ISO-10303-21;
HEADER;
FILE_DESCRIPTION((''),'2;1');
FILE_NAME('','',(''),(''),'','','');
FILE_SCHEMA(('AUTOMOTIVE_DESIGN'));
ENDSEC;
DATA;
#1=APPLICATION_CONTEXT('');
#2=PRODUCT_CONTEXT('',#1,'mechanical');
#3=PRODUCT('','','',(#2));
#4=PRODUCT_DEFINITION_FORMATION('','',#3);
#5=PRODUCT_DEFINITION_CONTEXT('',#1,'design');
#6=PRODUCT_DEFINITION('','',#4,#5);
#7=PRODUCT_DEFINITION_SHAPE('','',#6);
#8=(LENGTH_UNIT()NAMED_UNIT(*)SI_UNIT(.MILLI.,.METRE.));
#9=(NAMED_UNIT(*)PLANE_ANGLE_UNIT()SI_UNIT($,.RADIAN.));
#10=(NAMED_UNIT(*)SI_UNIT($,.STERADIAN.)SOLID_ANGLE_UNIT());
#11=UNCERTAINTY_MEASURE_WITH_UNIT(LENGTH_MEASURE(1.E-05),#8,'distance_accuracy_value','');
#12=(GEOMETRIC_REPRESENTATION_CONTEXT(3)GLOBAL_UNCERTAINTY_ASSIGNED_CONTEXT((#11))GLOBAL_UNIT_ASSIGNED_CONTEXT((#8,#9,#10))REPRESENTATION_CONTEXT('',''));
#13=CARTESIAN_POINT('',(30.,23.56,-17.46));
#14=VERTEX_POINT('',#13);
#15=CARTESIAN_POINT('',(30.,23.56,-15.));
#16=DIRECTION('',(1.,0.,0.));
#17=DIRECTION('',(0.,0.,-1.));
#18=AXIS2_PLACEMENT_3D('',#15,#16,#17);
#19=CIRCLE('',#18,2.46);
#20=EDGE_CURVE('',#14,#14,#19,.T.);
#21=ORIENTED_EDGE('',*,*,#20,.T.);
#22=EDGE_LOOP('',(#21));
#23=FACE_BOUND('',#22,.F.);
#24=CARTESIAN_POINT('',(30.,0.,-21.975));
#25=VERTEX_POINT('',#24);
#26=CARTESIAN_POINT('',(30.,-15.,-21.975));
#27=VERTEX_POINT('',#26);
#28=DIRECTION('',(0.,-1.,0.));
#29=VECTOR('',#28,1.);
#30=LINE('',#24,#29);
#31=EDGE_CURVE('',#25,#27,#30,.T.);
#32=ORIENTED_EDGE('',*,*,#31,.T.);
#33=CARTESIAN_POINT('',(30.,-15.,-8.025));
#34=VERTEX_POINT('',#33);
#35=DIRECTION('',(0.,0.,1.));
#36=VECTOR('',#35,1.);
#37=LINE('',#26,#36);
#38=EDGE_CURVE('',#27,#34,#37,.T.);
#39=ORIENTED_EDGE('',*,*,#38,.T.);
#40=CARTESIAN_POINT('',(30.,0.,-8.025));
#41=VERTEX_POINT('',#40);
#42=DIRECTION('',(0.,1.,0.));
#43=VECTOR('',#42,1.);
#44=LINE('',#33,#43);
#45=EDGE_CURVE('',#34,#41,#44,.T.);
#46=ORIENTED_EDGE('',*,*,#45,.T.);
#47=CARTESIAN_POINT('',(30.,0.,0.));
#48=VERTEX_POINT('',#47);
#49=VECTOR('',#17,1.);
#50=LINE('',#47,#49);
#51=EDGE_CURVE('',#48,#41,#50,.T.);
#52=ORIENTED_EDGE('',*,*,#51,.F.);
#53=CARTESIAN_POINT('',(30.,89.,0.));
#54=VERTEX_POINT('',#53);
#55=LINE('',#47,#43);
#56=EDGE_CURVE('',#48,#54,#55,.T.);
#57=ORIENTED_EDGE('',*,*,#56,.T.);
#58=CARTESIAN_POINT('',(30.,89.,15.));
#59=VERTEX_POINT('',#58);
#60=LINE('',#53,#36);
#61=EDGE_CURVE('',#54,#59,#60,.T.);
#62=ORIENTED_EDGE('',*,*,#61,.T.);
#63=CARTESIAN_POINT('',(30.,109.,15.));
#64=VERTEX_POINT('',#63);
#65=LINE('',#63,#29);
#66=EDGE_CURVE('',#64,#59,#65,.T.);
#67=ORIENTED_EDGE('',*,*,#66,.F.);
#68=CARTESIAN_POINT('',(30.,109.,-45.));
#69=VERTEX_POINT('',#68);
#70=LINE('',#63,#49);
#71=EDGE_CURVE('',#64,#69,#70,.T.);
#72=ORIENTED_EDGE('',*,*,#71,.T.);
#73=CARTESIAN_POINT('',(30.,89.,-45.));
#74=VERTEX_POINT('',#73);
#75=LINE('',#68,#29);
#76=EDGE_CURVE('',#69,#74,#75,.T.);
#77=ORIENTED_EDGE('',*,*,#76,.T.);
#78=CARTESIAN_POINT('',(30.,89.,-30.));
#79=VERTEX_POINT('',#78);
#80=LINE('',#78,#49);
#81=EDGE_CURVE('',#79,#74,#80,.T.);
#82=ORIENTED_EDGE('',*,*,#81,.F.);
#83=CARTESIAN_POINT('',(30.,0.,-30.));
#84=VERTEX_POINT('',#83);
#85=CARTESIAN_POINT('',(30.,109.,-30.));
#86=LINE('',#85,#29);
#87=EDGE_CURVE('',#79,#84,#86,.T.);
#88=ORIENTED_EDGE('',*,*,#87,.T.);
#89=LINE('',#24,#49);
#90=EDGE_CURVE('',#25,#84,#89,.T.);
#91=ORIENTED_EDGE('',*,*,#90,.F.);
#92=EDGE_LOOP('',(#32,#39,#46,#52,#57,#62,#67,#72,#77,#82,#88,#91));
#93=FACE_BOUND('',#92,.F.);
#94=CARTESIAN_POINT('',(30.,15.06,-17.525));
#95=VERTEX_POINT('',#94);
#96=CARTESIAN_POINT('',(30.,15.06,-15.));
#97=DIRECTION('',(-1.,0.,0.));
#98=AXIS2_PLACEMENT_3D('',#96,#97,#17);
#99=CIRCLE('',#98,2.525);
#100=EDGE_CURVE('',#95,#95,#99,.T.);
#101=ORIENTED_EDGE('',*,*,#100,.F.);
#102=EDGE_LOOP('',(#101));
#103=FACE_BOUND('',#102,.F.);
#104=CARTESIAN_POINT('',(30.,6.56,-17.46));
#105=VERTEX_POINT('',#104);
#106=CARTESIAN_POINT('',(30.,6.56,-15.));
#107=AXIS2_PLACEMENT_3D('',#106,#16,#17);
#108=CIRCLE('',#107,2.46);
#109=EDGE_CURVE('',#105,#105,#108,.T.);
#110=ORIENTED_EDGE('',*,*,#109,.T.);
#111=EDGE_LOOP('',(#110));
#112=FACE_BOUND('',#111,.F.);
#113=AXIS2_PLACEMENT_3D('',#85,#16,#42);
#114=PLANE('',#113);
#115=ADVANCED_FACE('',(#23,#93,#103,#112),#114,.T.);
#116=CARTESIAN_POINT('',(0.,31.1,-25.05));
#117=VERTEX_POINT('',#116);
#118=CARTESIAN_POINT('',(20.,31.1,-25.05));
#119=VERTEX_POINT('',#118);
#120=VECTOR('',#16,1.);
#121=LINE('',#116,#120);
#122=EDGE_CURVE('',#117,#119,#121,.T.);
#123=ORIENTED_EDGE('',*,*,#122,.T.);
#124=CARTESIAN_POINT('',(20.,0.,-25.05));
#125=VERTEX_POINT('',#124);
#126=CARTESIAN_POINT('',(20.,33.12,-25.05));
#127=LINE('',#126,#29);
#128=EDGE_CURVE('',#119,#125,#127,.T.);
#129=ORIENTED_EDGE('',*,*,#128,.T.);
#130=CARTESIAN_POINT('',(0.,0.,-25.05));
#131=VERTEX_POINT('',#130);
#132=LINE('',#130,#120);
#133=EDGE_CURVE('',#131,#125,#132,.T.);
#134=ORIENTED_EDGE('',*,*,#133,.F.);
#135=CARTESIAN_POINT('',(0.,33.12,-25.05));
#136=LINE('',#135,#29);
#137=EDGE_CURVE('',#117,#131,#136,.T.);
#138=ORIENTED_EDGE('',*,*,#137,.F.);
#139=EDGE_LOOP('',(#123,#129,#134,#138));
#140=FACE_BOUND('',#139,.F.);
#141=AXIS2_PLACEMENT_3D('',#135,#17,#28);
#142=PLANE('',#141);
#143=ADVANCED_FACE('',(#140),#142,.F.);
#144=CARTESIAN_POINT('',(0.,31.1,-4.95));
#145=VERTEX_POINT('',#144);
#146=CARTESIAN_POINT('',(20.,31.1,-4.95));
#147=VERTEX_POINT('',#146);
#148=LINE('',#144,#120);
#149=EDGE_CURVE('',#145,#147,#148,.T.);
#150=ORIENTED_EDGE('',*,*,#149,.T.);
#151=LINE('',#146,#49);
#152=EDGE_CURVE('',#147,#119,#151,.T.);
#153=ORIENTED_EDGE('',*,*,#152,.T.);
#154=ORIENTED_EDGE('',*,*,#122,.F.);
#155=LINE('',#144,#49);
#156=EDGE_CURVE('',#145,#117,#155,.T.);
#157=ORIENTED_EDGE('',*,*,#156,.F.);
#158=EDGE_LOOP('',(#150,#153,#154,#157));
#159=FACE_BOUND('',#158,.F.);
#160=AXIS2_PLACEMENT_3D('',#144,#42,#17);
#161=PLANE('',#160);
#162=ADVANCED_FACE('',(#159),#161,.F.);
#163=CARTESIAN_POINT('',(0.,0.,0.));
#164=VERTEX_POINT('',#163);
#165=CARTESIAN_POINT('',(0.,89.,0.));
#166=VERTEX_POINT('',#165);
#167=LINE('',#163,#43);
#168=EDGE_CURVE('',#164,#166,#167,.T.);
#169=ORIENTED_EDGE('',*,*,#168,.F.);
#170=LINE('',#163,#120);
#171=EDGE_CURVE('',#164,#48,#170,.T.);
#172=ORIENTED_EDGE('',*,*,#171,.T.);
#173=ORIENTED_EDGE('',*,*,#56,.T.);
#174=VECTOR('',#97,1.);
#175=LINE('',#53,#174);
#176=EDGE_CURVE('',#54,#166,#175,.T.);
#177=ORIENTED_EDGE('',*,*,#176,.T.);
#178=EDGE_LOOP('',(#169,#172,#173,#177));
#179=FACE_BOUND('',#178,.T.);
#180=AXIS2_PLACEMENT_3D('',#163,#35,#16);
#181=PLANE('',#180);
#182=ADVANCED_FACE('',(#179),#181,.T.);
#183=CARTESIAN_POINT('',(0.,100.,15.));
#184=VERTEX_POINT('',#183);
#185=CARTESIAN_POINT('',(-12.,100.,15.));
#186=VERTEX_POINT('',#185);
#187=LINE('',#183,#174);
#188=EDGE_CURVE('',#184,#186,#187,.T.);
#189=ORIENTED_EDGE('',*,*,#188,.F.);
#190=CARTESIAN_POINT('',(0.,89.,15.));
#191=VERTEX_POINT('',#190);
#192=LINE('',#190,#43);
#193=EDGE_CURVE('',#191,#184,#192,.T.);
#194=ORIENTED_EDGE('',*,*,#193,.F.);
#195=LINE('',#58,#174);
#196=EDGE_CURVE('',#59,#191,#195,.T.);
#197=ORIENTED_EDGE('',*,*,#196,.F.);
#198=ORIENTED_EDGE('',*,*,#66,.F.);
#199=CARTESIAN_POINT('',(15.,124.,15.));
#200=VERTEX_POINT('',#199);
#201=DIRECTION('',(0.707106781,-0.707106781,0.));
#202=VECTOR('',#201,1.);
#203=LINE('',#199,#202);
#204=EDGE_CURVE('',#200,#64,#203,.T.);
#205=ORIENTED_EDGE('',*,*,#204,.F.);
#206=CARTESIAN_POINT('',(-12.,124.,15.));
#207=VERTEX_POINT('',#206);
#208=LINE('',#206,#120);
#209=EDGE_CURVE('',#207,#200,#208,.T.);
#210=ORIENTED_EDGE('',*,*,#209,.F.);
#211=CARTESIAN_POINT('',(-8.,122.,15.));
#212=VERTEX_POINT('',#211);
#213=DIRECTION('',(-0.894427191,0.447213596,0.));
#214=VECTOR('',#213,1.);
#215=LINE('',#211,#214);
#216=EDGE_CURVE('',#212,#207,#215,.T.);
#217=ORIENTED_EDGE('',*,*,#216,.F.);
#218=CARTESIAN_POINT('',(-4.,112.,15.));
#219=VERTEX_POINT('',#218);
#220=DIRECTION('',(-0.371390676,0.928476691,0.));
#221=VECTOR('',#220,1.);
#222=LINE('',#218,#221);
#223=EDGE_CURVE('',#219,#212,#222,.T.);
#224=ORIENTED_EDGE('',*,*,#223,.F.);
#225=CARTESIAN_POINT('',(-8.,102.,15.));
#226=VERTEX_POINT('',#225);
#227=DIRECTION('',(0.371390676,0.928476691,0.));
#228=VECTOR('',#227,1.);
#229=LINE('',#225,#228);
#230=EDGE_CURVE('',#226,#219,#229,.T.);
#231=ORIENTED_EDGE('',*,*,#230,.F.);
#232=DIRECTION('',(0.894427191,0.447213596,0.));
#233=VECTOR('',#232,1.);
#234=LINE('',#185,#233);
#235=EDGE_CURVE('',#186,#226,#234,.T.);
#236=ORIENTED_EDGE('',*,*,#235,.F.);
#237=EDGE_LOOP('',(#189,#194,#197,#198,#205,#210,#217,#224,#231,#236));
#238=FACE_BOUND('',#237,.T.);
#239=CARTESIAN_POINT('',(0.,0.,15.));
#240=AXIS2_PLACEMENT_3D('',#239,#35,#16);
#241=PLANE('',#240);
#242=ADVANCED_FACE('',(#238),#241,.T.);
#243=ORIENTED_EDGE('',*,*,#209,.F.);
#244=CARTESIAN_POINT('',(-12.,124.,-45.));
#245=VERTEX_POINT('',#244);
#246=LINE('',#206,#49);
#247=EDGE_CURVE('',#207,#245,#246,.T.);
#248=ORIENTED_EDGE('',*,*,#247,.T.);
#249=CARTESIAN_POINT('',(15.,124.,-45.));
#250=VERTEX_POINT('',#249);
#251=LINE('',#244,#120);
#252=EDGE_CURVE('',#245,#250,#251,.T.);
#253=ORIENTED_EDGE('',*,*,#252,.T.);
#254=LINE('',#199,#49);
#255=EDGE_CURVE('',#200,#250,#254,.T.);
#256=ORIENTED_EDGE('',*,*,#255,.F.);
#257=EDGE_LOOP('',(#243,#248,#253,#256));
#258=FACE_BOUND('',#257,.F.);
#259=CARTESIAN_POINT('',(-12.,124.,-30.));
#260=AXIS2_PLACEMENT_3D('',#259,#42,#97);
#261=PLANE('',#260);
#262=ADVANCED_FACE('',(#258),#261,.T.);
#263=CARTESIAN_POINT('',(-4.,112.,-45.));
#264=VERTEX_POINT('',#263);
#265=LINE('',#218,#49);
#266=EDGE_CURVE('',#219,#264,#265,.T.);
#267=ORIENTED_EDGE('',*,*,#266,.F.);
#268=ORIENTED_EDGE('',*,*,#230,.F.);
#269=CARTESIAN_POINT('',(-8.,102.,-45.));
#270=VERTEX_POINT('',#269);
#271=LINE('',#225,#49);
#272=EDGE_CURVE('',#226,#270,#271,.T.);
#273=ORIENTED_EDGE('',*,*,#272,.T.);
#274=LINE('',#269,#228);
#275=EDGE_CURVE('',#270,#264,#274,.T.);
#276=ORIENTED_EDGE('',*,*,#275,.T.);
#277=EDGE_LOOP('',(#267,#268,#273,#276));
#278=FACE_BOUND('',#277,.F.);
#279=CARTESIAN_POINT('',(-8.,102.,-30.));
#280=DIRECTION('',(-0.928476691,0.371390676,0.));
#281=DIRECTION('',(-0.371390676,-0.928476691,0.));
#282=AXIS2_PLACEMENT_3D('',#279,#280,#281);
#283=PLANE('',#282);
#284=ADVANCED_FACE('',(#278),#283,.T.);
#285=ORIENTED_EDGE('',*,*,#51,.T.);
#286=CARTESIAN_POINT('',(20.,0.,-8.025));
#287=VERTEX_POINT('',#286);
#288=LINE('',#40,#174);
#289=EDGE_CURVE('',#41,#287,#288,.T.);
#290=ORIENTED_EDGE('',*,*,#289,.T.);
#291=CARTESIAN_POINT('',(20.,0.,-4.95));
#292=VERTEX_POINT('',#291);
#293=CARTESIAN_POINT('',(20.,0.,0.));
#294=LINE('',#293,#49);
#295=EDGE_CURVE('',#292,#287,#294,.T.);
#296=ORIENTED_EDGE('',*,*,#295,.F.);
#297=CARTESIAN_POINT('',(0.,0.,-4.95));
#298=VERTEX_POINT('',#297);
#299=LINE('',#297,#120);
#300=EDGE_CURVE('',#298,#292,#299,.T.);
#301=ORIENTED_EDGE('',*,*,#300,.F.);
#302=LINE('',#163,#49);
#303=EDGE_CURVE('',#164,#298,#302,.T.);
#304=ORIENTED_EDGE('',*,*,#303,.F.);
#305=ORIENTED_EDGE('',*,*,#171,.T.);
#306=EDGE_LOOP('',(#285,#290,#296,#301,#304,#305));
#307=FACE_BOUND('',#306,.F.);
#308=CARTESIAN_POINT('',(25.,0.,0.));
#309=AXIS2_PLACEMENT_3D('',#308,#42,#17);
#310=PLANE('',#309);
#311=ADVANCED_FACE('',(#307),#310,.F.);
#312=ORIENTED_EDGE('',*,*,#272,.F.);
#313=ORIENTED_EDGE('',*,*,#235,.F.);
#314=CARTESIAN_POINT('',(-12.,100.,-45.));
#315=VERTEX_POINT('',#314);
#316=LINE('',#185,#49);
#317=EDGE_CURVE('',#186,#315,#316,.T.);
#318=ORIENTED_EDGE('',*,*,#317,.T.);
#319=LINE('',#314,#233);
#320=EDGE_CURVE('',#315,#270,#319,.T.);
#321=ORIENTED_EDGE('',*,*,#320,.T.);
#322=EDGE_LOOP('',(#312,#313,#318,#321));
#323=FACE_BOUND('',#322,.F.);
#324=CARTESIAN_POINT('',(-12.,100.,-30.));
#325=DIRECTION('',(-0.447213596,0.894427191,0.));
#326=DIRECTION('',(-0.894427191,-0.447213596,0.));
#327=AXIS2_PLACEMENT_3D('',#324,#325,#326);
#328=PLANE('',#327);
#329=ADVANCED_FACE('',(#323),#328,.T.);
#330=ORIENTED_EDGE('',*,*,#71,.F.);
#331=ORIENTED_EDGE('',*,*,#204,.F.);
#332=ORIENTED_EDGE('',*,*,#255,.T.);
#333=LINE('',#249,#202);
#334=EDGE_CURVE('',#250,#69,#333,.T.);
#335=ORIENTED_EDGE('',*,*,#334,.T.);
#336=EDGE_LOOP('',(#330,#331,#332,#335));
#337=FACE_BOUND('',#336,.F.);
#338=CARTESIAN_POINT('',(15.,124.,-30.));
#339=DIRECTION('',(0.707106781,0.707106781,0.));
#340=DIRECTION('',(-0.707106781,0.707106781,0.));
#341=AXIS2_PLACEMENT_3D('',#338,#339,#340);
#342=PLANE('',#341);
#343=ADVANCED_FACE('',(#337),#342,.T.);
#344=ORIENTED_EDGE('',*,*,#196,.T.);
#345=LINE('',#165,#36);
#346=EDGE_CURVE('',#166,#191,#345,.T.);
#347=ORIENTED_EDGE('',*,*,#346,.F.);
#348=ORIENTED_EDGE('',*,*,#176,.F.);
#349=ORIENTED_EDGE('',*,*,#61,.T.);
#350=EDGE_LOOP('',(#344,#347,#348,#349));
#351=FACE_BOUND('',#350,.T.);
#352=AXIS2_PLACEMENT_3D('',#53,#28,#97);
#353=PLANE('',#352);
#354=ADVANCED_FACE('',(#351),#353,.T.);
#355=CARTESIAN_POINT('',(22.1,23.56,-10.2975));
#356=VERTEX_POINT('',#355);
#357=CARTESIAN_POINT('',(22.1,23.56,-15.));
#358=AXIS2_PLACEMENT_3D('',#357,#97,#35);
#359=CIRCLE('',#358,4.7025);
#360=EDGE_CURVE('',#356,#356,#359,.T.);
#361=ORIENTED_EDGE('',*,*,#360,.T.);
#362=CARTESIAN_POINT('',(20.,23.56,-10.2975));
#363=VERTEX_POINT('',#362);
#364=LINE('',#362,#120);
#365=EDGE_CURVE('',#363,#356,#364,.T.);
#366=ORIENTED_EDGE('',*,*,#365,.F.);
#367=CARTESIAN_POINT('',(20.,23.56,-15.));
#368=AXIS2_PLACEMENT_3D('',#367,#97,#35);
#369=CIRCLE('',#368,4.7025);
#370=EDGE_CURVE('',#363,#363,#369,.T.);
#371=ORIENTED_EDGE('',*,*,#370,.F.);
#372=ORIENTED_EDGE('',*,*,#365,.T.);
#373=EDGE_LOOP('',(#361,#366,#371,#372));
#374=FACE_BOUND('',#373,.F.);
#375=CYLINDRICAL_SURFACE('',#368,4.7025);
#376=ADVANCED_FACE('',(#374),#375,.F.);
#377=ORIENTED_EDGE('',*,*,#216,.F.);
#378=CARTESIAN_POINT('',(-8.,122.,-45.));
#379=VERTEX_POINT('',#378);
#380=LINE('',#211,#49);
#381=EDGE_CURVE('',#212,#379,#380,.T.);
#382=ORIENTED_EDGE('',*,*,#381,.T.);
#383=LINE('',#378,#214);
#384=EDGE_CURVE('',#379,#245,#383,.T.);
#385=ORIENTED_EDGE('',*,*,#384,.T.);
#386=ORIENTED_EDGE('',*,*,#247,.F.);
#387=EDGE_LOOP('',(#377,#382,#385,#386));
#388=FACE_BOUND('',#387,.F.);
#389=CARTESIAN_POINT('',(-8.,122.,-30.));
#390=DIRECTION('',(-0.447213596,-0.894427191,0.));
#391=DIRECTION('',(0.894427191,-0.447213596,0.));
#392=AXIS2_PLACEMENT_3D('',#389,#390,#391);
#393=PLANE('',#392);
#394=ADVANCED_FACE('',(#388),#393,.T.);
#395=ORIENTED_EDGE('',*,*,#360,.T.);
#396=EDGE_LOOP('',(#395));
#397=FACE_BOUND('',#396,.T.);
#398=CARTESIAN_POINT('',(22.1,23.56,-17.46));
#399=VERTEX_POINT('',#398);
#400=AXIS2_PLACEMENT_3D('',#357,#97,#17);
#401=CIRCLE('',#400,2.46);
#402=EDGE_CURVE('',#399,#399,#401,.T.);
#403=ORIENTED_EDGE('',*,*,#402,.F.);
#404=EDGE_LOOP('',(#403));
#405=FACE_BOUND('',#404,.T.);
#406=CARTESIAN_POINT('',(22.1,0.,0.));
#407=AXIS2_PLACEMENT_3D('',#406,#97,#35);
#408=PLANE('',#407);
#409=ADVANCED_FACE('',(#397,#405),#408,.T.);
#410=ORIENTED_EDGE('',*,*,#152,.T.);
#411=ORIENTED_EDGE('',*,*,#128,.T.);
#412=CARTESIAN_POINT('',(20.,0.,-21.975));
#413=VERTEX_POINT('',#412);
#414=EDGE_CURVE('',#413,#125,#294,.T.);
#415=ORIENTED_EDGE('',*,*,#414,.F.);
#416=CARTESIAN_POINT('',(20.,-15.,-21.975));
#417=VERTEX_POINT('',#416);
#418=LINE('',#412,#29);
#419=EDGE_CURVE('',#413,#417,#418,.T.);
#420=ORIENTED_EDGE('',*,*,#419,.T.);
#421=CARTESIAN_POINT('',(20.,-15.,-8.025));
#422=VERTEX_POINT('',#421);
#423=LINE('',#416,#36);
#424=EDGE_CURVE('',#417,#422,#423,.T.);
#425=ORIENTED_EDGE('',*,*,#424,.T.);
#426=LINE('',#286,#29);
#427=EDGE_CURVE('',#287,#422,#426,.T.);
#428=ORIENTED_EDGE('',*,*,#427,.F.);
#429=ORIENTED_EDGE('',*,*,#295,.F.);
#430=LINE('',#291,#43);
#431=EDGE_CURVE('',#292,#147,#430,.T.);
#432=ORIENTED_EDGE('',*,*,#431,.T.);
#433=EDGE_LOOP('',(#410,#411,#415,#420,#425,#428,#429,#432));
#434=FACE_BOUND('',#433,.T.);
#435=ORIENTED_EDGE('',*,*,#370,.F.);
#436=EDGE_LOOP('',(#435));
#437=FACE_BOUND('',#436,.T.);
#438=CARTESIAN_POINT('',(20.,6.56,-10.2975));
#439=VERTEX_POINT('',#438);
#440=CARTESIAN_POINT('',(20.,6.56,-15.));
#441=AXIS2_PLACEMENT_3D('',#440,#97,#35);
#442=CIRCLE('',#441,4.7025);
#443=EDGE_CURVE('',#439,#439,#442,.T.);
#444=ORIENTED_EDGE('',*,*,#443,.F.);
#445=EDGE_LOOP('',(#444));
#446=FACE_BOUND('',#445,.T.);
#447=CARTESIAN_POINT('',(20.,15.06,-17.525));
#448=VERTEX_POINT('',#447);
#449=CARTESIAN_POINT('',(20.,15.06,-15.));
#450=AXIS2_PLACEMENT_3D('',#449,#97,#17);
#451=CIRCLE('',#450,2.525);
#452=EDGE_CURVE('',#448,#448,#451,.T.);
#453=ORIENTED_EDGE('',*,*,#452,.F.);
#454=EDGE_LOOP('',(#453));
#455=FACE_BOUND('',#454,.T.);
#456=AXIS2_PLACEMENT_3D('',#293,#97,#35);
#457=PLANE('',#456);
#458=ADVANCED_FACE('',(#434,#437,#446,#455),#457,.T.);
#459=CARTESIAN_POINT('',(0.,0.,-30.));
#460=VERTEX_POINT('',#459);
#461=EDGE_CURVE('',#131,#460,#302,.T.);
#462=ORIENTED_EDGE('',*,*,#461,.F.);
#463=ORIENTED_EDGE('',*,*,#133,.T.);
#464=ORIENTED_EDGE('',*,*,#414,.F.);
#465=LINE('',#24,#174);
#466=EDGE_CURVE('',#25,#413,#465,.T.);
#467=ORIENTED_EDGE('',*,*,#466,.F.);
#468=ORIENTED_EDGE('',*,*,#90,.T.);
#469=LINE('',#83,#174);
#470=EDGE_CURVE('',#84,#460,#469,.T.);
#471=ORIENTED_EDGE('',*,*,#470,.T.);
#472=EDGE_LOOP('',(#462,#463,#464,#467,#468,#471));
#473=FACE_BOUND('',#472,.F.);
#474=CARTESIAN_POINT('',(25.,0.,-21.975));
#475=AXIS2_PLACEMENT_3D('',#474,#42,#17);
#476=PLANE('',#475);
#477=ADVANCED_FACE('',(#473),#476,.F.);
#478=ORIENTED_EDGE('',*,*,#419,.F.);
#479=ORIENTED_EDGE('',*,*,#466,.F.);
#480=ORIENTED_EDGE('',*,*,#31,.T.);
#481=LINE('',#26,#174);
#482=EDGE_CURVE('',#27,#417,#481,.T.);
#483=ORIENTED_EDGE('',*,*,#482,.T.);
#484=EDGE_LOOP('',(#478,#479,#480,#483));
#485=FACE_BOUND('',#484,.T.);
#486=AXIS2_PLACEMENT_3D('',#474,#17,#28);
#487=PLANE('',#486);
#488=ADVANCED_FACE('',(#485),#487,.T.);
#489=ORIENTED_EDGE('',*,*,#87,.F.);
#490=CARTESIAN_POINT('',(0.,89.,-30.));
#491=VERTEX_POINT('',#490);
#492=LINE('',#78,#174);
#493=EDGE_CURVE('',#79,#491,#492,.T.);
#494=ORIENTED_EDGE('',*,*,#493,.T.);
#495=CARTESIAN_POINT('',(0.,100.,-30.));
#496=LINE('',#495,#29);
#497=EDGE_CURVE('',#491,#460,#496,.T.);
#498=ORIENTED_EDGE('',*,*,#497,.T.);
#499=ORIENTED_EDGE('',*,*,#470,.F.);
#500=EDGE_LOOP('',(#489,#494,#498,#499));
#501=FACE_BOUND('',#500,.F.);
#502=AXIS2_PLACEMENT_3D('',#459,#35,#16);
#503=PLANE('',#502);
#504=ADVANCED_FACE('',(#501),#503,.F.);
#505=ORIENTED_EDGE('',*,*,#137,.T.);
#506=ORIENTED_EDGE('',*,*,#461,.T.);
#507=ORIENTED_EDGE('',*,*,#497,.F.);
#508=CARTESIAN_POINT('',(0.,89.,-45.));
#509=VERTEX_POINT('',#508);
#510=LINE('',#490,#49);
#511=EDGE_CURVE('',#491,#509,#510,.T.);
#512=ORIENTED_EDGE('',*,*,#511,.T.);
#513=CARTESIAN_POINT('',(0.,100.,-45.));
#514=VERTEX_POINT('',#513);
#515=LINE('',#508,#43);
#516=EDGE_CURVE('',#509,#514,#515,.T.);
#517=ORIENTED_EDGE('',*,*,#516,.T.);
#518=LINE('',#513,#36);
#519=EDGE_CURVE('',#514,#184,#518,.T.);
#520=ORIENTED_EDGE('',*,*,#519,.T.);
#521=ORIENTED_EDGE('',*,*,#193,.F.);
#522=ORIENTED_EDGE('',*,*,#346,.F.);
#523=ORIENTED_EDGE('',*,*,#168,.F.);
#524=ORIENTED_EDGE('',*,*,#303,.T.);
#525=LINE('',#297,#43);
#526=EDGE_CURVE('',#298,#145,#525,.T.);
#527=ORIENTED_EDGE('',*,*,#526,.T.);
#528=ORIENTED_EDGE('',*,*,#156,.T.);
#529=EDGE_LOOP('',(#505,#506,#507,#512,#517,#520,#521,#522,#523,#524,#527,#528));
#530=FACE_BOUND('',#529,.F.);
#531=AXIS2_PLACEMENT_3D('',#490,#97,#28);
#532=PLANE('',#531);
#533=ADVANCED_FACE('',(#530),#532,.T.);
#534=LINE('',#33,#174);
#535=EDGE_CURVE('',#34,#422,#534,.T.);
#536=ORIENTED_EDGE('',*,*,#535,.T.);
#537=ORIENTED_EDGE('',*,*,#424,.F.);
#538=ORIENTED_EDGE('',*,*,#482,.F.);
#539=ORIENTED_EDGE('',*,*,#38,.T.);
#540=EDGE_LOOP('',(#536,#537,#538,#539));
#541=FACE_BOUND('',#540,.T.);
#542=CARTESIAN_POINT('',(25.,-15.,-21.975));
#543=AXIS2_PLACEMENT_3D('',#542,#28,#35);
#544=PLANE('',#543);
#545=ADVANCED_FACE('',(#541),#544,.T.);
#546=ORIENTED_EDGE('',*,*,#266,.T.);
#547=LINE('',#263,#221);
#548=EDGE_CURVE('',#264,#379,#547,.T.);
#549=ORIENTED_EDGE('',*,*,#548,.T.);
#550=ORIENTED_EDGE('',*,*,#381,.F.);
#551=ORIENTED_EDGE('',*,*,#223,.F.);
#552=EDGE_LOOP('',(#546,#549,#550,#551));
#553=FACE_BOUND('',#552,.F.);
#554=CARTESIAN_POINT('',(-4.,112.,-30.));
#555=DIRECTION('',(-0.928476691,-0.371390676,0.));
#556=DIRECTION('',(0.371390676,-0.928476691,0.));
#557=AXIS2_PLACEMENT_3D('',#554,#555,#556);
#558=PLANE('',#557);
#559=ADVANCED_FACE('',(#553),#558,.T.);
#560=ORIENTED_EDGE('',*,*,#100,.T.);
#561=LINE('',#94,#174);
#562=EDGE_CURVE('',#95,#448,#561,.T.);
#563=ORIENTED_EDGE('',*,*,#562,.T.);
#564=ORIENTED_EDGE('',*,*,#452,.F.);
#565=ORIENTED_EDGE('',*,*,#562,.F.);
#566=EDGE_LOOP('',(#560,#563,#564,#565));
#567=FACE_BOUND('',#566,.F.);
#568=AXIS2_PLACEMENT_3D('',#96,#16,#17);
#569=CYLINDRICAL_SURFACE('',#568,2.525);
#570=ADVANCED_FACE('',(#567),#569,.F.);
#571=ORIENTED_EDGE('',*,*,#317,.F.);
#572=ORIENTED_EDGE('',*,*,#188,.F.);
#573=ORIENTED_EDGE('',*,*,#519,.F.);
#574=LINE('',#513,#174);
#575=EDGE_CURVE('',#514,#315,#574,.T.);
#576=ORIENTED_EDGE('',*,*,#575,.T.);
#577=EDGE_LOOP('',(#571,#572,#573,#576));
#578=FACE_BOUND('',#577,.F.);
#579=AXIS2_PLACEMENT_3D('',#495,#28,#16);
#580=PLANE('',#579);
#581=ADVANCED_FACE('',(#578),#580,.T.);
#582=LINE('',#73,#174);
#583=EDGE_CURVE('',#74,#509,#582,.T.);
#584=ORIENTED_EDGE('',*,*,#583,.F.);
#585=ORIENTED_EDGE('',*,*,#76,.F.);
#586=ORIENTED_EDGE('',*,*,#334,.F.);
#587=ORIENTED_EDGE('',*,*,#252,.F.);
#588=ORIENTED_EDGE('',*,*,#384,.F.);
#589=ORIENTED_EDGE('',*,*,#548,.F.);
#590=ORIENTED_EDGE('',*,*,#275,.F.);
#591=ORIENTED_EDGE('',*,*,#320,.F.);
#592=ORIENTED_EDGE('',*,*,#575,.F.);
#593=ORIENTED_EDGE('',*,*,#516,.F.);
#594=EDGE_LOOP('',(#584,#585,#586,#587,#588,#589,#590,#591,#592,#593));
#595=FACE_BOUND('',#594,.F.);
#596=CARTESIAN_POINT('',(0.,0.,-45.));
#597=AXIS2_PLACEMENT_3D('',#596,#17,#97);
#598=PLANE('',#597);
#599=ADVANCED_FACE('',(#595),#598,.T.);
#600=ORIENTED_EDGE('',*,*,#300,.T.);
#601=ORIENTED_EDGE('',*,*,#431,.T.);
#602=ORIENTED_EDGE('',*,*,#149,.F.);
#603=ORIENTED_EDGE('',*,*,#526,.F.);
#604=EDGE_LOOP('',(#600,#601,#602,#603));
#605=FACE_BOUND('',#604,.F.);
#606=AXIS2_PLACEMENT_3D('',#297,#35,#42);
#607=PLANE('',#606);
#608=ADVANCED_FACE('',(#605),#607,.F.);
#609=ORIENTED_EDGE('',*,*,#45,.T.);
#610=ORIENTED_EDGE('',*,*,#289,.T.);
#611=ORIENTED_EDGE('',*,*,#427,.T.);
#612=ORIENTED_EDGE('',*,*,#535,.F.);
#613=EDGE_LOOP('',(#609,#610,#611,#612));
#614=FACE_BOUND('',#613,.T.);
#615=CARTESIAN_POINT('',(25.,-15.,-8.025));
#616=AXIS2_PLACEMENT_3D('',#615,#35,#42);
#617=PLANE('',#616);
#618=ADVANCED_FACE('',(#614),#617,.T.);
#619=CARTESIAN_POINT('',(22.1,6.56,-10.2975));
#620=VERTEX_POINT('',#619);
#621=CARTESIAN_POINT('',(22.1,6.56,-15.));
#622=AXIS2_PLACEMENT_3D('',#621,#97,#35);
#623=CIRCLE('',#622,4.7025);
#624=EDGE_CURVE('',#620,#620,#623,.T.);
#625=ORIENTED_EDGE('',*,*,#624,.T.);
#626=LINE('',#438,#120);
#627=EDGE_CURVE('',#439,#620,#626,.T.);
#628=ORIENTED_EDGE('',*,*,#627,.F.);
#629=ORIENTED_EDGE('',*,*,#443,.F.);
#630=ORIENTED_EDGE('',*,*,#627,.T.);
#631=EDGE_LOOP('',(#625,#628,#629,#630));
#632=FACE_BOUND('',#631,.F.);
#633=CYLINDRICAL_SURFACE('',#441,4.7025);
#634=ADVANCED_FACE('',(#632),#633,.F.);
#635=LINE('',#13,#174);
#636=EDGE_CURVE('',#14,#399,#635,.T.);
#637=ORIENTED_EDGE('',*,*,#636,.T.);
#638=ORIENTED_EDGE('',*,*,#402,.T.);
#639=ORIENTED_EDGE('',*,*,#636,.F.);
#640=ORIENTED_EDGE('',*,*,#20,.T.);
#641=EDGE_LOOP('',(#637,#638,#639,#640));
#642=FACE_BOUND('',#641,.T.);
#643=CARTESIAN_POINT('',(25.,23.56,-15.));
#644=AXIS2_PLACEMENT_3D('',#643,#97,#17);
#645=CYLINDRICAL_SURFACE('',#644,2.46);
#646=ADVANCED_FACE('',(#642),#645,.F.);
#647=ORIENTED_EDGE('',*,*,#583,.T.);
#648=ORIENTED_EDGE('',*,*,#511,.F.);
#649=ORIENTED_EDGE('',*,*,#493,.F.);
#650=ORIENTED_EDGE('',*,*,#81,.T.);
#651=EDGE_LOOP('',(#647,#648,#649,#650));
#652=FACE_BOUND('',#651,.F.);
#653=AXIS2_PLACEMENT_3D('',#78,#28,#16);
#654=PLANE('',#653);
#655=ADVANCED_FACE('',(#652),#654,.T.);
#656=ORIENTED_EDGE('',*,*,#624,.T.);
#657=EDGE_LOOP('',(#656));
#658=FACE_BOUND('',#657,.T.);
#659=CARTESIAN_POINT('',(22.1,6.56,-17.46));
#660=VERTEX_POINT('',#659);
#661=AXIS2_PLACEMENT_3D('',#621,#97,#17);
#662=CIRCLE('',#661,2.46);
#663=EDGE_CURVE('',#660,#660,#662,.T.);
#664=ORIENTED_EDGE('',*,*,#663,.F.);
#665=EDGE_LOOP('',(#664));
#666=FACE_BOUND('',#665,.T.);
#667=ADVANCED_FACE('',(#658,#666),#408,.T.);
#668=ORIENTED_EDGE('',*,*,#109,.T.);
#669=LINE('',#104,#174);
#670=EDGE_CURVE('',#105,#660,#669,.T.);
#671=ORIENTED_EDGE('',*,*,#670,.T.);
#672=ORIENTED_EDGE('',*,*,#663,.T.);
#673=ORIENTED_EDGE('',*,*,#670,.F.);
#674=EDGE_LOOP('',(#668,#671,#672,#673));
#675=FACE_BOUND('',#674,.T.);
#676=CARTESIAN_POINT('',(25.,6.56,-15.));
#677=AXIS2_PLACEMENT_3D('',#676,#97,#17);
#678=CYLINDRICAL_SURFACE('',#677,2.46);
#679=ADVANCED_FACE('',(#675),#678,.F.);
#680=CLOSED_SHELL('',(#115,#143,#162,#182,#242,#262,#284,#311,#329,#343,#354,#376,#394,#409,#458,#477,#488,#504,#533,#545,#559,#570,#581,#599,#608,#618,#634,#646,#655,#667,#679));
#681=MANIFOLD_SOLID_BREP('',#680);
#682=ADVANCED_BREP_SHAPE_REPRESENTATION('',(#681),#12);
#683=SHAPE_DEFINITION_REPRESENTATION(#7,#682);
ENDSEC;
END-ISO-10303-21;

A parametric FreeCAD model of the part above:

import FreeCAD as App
import Part
import Sketcher
from FreeCAD import Vector
Q = App.Units.Quantity

doc = App.newDocument("Part")
body = doc.addObject("PartDesign::Body", "Body")

sketch1 = body.newObject("Sketcher::SketchObject", "Sketch")
sketch1.AttachmentSupport = (doc.getObject("XY_Plane"), [""])
sketch1.MapMode = "FlatFace"
sketch1.addGeometry(Part.LineSegment(Vector(0, 40, 0), Vector(0, 0, 0)), False)
sketch1.addGeometry(Part.LineSegment(Vector(0, 0, 0), Vector(25, 0, 0)), False)
sketch1.addGeometry(Part.LineSegment(Vector(25, 0, 0), Vector(25, 40, 0)), False)
sketch1.addGeometry(Part.LineSegment(Vector(25, 40, 0), Vector(0, 40, 0)), False)
sketch1.addConstraint(Sketcher.Constraint("Coincident", 0, 2, 1, 1))
sketch1.addConstraint(Sketcher.Constraint("Coincident", 1, 2, 2, 1))
sketch1.addConstraint(Sketcher.Constraint("Coincident", 2, 2, 3, 1))
sketch1.addConstraint(Sketcher.Constraint("Coincident", 3, 2, 0, 1))
sketch1.addConstraint(Sketcher.Constraint("Vertical", 0))
sketch1.addConstraint(Sketcher.Constraint("Horizontal", 1))
sketch1.addConstraint(Sketcher.Constraint("Vertical", 2))
sketch1.addConstraint(Sketcher.Constraint("Horizontal", 3))
sketch1.addConstraint(Sketcher.Constraint("Coincident", 0, 2, -1, 1))
sketch1.addConstraint(Sketcher.Constraint("DistanceX", 1, 1, 1, 2, Q("25 mm")))
sketch1.addConstraint(Sketcher.Constraint("DistanceY", 0, 2, 0, 1, Q("40 mm")))
pad1 = body.newObject("PartDesign::Pad", "Pad")
pad1.Profile = sketch1
pad1.Length = 30
pad1.Reversed = True

sketch2 = body.newObject("Sketcher::SketchObject", "Sketch001")
sketch2.AttachmentSupport = (doc.getObject("YZ_Plane"), [""])
sketch2.MapMode = "FlatFace"
sketch2.AttachmentOffset = App.Placement(Vector(0, 0, 25), App.Rotation())
sketch2.addGeometry(Part.Circle(Vector(6.6, -15, 0), Vector(0, 0, 1), 2.5), False)
sketch2.addConstraint(Sketcher.Constraint("Diameter", 0, Q("4.92 mm")))
sketch2.addConstraint(Sketcher.Constraint("DistanceY", 0, 3, -1, 1, Q("15 mm")))
sketch2.addConstraint(Sketcher.Constraint("DistanceX", -1, 1, 0, 3, Q("6.56 mm")))
pocket1 = body.newObject("PartDesign::Pocket", "Pocket")
pocket1.Profile = sketch2
pocket1.Length = 30

sketch3 = body.newObject("Sketcher::SketchObject", "Sketch002")
sketch3.AttachmentSupport = (doc.getObject("YZ_Plane"), [""])
sketch3.MapMode = "FlatFace"
sketch3.addGeometry(Part.LineSegment(Vector(0, -25, 0), Vector(0, -5, 0)), False)
sketch3.addGeometry(Part.LineSegment(Vector(0, -5, 0), Vector(33, -5, 0)), False)
sketch3.addGeometry(Part.LineSegment(Vector(33, -5, 0), Vector(33, -25, 0)), False)
sketch3.addGeometry(Part.LineSegment(Vector(33, -25, 0), Vector(0, -25, 0)), False)
sketch3.addConstraint(Sketcher.Constraint("Coincident", 0, 2, 1, 1))
sketch3.addConstraint(Sketcher.Constraint("Coincident", 1, 2, 2, 1))
sketch3.addConstraint(Sketcher.Constraint("Coincident", 2, 2, 3, 1))
sketch3.addConstraint(Sketcher.Constraint("Coincident", 3, 2, 0, 1))
sketch3.addConstraint(Sketcher.Constraint("Vertical", 0))
sketch3.addConstraint(Sketcher.Constraint("Horizontal", 1))
sketch3.addConstraint(Sketcher.Constraint("Vertical", 2))
sketch3.addConstraint(Sketcher.Constraint("Horizontal", 3))
sketch3.addConstraint(Sketcher.Constraint("PointOnObject", 0, 2, -2))
sketch3.addConstraint(Sketcher.Constraint("DistanceY", 0, 1, 0, 2, Q("20.1 mm")))
sketch3.addConstraint(Sketcher.Constraint("DistanceX", 1, 1, 1, 2, Q("33.12 mm")))
sketch3.addConstraint(Sketcher.Constraint("DistanceY", 0, 2, -1, 1, Q("4.95 mm")))
pocket2 = body.newObject("PartDesign::Pocket", "Pocket001")
pocket2.Profile = sketch3
pocket2.Length = 20
pocket2.Reversed = True

sketch4 = body.newObject("Sketcher::SketchObject", "Sketch003")
sketch4.AttachmentSupport = (doc.getObject("XZ_Plane"), [""])
sketch4.MapMode = "FlatFace"
sketch4.addGeometry(Part.LineSegment(Vector(25, -8, 0), Vector(20, -8, 0)), False)
sketch4.addGeometry(Part.LineSegment(Vector(20, -8, 0), Vector(20, -22, 0)), False)
sketch4.addGeometry(Part.LineSegment(Vector(20, -22, 0), Vector(25, -22, 0)), False)
sketch4.addGeometry(Part.LineSegment(Vector(25, -22, 0), Vector(25, -8, 0)), False)
sketch4.addConstraint(Sketcher.Constraint("Coincident", 0, 2, 1, 1))
sketch4.addConstraint(Sketcher.Constraint("Coincident", 1, 2, 2, 1))
sketch4.addConstraint(Sketcher.Constraint("Coincident", 2, 2, 3, 1))
sketch4.addConstraint(Sketcher.Constraint("Coincident", 3, 2, 0, 1))
sketch4.addConstraint(Sketcher.Constraint("Horizontal", 0))
sketch4.addConstraint(Sketcher.Constraint("Vertical", 1))
sketch4.addConstraint(Sketcher.Constraint("Horizontal", 2))
sketch4.addConstraint(Sketcher.Constraint("Vertical", 3))
sketch4.addConstraint(Sketcher.Constraint("DistanceY", 1, 2, 1, 1, Q("13.95 mm")))
sketch4.addConstraint(Sketcher.Constraint("DistanceX", 0, 2, 0, 1, Q("5 mm")))
sketch4.addConstraint(Sketcher.Constraint("DistanceX", -1, 1, 0, 2, Q("20 mm")))
sketch4.addConstraint(Sketcher.Constraint("DistanceY", 0, 2, -1, 1, Q("8.025 mm")))
pad2 = body.newObject("PartDesign::Pad", "Pad001")
pad2.Profile = sketch4
pad2.Length = 15

sketch5 = body.newObject("Sketcher::SketchObject", "Sketch004")
sketch5.AttachmentSupport = (doc.getObject("YZ_Plane"), [""])
sketch5.MapMode = "FlatFace"
sketch5.AttachmentOffset = App.Placement(Vector(0, 0, 20), App.Rotation())
sketch5.addGeometry(Part.Circle(Vector(6.6, -15, 0), Vector(0, 0, 1), 4.7), False)
sketch5.addGeometry(Part.Circle(Vector(6.6, -15, 0), Vector(0, 0, 1), 2.5), False)
sketch5.addConstraint(Sketcher.Constraint("Coincident", 1, 3, 0, 3))
sketch5.addConstraint(Sketcher.Constraint("Diameter", 0, Q("9.405 mm")))
sketch5.addConstraint(Sketcher.Constraint("Diameter", 1, Q("4.92 mm")))
sketch5.addConstraint(Sketcher.Constraint("DistanceY", 0, 3, -1, 1, Q("15 mm")))
sketch5.addConstraint(Sketcher.Constraint("DistanceX", -1, 1, 0, 3, Q("6.56 mm")))
pocket3 = body.newObject("PartDesign::Pocket", "Pocket002")
pocket3.Profile = sketch5
pocket3.Length = 2.1
pocket3.Reversed = True

sketch6 = body.newObject("Sketcher::SketchObject", "Sketch005")
sketch6.AttachmentSupport = (doc.getObject("YZ_Plane"), [""])
sketch6.MapMode = "FlatFace"
sketch6.AttachmentOffset = App.Placement(Vector(0, 0, 25), App.Rotation())
sketch6.addGeometry(Part.Circle(Vector(23.6, -15, 0), Vector(0, 0, 1), 2.5), False)
sketch6.addConstraint(Sketcher.Constraint("Diameter", 0, Q("4.92 mm")))
sketch6.addConstraint(Sketcher.Constraint("DistanceY", 0, 3, -1, 1, Q("15 mm")))
sketch6.addConstraint(Sketcher.Constraint("DistanceX", -1, 1, 0, 3, Q("23.56 mm")))
pocket4 = body.newObject("PartDesign::Pocket", "Pocket003")
pocket4.Profile = sketch6
pocket4.Length = 10

sketch7 = body.newObject("Sketcher::SketchObject", "Sketch006")
sketch7.AttachmentSupport = (doc.getObject("YZ_Plane"), [""])
sketch7.MapMode = "FlatFace"
sketch7.AttachmentOffset = App.Placement(Vector(0, 0, 20), App.Rotation())
sketch7.addGeometry(Part.Circle(Vector(23.6, -15, 0), Vector(0, 0, 1), 4.7), False)
sketch7.addGeometry(Part.Circle(Vector(23.6, -15, 0), Vector(0, 0, 1), 2.5), False)
sketch7.addConstraint(Sketcher.Constraint("Coincident", 1, 3, 0, 3))
sketch7.addConstraint(Sketcher.Constraint("Diameter", 0, Q("9.405 mm")))
sketch7.addConstraint(Sketcher.Constraint("Diameter", 1, Q("4.92 mm")))
sketch7.addConstraint(Sketcher.Constraint("DistanceY", 0, 3, -1, 1, Q("15 mm")))
sketch7.addConstraint(Sketcher.Constraint("DistanceX", -1, 1, 0, 3, Q("23.56 mm")))
pocket5 = body.newObject("PartDesign::Pocket", "Pocket004")
pocket5.Profile = sketch7
pocket5.Length = 2.1
pocket5.Reversed = True

sketch8 = body.newObject("Sketcher::SketchObject", "Sketch007")
sketch8.AttachmentSupport = (doc.getObject("YZ_Plane"), [""])
sketch8.MapMode = "FlatFace"
sketch8.AttachmentOffset = App.Placement(Vector(0, 0, 25), App.Rotation())
sketch8.addGeometry(Part.LineSegment(Vector(0, -30, 0), Vector(40, -30, 0)), False)
sketch8.addGeometry(Part.LineSegment(Vector(40, -30, 0), Vector(40, 0, 0)), False)
sketch8.addGeometry(Part.LineSegment(Vector(40, 0, 0), Vector(0, 0, 0)), False)
sketch8.addGeometry(Part.LineSegment(Vector(0, 0, 0), Vector(0, -8, 0)), False)
sketch8.addGeometry(Part.LineSegment(Vector(0, -8, 0), Vector(-15, -8, 0)), False)
sketch8.addGeometry(Part.LineSegment(Vector(-15, -8, 0), Vector(-15, -22, 0)), False)
sketch8.addGeometry(Part.LineSegment(Vector(-15, -22, 0), Vector(0, -22, 0)), False)
sketch8.addGeometry(Part.LineSegment(Vector(0, -22, 0), Vector(0, -30, 0)), False)
sketch8.addGeometry(Part.Circle(Vector(6.6, -15, 0), Vector(0, 0, 1), 2.5), False)
sketch8.addGeometry(Part.Circle(Vector(23.6, -15, 0), Vector(0, 0, 1), 2.5), False)
sketch8.addConstraint(Sketcher.Constraint("Coincident", 0, 2, 1, 1))
sketch8.addConstraint(Sketcher.Constraint("Coincident", 1, 2, 2, 1))
sketch8.addConstraint(Sketcher.Constraint("Coincident", 2, 2, 3, 1))
sketch8.addConstraint(Sketcher.Constraint("Coincident", 3, 2, 4, 1))
sketch8.addConstraint(Sketcher.Constraint("Coincident", 4, 2, 5, 1))
sketch8.addConstraint(Sketcher.Constraint("Coincident", 5, 2, 6, 1))
sketch8.addConstraint(Sketcher.Constraint("Coincident", 6, 2, 7, 1))
sketch8.addConstraint(Sketcher.Constraint("Coincident", 7, 2, 0, 1))
sketch8.addConstraint(Sketcher.Constraint("Horizontal", 0))
sketch8.addConstraint(Sketcher.Constraint("Vertical", 1))
sketch8.addConstraint(Sketcher.Constraint("Horizontal", 2))
sketch8.addConstraint(Sketcher.Constraint("Vertical", 3))
sketch8.addConstraint(Sketcher.Constraint("Horizontal", 4))
sketch8.addConstraint(Sketcher.Constraint("Vertical", 5))
sketch8.addConstraint(Sketcher.Constraint("Horizontal", 6))
sketch8.addConstraint(Sketcher.Constraint("Vertical", 7))
sketch8.addConstraint(Sketcher.Constraint("Coincident", 2, 2, -1, 1))
sketch8.addConstraint(Sketcher.Constraint("Equal", 8, 9))
sketch8.addConstraint(Sketcher.Constraint("PointOnObject", 6, 2, -2))
sketch8.addConstraint(Sketcher.Constraint("Horizontal", 8, 3, 9, 3))
sketch8.addConstraint(Sketcher.Constraint("Equal", 3, 7))
sketch8.addConstraint(Sketcher.Constraint("Diameter", 8, Q("4.92 mm")))
sketch8.addConstraint(Sketcher.Constraint("DistanceX", 0, 1, 0, 2, Q("40 mm")))
sketch8.addConstraint(Sketcher.Constraint("DistanceX", 4, 2, 4, 1, Q("15 mm")))
sketch8.addConstraint(Sketcher.Constraint("DistanceY", 1, 1, 1, 2, Q("30 mm")))
sketch8.addConstraint(Sketcher.Constraint("DistanceY", 8, 3, -1, 1, Q("15 mm")))
sketch8.addConstraint(Sketcher.Constraint("DistanceX", 8, 3, 9, 3, Q("17 mm")))
sketch8.addConstraint(Sketcher.Constraint("DistanceY", 5, 2, 5, 1, Q("13.95 mm")))
sketch8.addConstraint(Sketcher.Constraint("DistanceX", -1, 1, 8, 3, Q("6.56 mm")))
pad3 = body.newObject("PartDesign::Pad", "Pad002")
pad3.Profile = sketch8
pad3.Length = 5

sketch9 = body.newObject("Sketcher::SketchObject", "Sketch008")
sketch9.AttachmentSupport = (doc.getObject("XZ_Plane"), [""])
sketch9.MapMode = "FlatFace"
sketch9.AttachmentOffset = App.Placement(Vector(0, 0, -40), App.Rotation())
sketch9.addGeometry(Part.LineSegment(Vector(30, -30, 0), Vector(0, -30, 0)), False)
sketch9.addGeometry(Part.LineSegment(Vector(0, -30, 0), Vector(0, 0, 0)), False)
sketch9.addGeometry(Part.LineSegment(Vector(0, 0, 0), Vector(30, 0, 0)), False)
sketch9.addGeometry(Part.LineSegment(Vector(30, 0, 0), Vector(30, -30, 0)), False)
sketch9.addConstraint(Sketcher.Constraint("Coincident", 0, 2, 1, 1))
sketch9.addConstraint(Sketcher.Constraint("Coincident", 1, 2, 2, 1))
sketch9.addConstraint(Sketcher.Constraint("Coincident", 2, 2, 3, 1))
sketch9.addConstraint(Sketcher.Constraint("Coincident", 3, 2, 0, 1))
sketch9.addConstraint(Sketcher.Constraint("Horizontal", 0))
sketch9.addConstraint(Sketcher.Constraint("Vertical", 1))
sketch9.addConstraint(Sketcher.Constraint("Horizontal", 2))
sketch9.addConstraint(Sketcher.Constraint("Vertical", 3))
sketch9.addConstraint(Sketcher.Constraint("Coincident", 1, 2, -1, 1))
sketch9.addConstraint(Sketcher.Constraint("Equal", 2, 1))
sketch9.addConstraint(Sketcher.Constraint("DistanceX", 0, 2, 0, 1, Q("30 mm")))
pad4 = body.newObject("PartDesign::Pad", "Pad003")
pad4.Profile = sketch9
pad4.Length = 30
pad4.Reversed = True

sketch10 = body.newObject("Sketcher::SketchObject", "Sketch009")
sketch10.AttachmentSupport = (doc.getObject("YZ_Plane"), [""])
sketch10.MapMode = "FlatFace"
sketch10.AttachmentOffset = App.Placement(Vector(0, 0, 30), App.Rotation())
sketch10.addGeometry(Part.Circle(Vector(15.1, -15, 0), Vector(0, 0, 1), 2.5), False)
sketch10.addConstraint(Sketcher.Constraint("Diameter", 0, Q("5.05 mm")))
sketch10.addConstraint(Sketcher.Constraint("DistanceY", 0, 3, -1, 1, Q("15 mm")))
sketch10.addConstraint(Sketcher.Constraint("DistanceX", -1, 1, 0, 3, Q("15.06 mm")))
pocket6 = body.newObject("PartDesign::Pocket", "Pocket005")
pocket6.Profile = sketch10
pocket6.Length = 30

sketch11 = body.newObject("Sketcher::SketchObject", "Sketch010")
sketch11.AttachmentSupport = (doc.getObject("XY_Plane"), [""])
sketch11.MapMode = "FlatFace"
sketch11.addGeometry(Part.LineSegment(Vector(0, 70, 0), Vector(30, 70, 0)), False)
sketch11.addGeometry(Part.LineSegment(Vector(30, 70, 0), Vector(30, 109, 0)), False)
sketch11.addGeometry(Part.LineSegment(Vector(30, 109, 0), Vector(15, 124, 0)), False)
sketch11.addGeometry(Part.LineSegment(Vector(15, 124, 0), Vector(-12, 124, 0)), False)
sketch11.addGeometry(Part.LineSegment(Vector(-12, 124, 0), Vector(-8, 122, 0)), False)
sketch11.addGeometry(Part.LineSegment(Vector(-8, 122, 0), Vector(-4, 112, 0)), False)
sketch11.addGeometry(Part.LineSegment(Vector(-4, 112, 0), Vector(-8, 102, 0)), False)
sketch11.addGeometry(Part.LineSegment(Vector(-8, 102, 0), Vector(-12, 100, 0)), False)
sketch11.addGeometry(Part.LineSegment(Vector(-12, 100, 0), Vector(0, 100, 0)), False)
sketch11.addGeometry(Part.LineSegment(Vector(0, 100, 0), Vector(0, 70, 0)), False)
sketch11.addConstraint(Sketcher.Constraint("Coincident", 0, 2, 1, 1))
sketch11.addConstraint(Sketcher.Constraint("Coincident", 1, 2, 2, 1))
sketch11.addConstraint(Sketcher.Constraint("Coincident", 2, 2, 3, 1))
sketch11.addConstraint(Sketcher.Constraint("Coincident", 3, 2, 4, 1))
sketch11.addConstraint(Sketcher.Constraint("Coincident", 4, 2, 5, 1))
sketch11.addConstraint(Sketcher.Constraint("Coincident", 5, 2, 6, 1))
sketch11.addConstraint(Sketcher.Constraint("Coincident", 6, 2, 7, 1))
sketch11.addConstraint(Sketcher.Constraint("Coincident", 7, 2, 8, 1))
sketch11.addConstraint(Sketcher.Constraint("Coincident", 8, 2, 9, 1))
sketch11.addConstraint(Sketcher.Constraint("Coincident", 9, 2, 0, 1))
sketch11.addConstraint(Sketcher.Constraint("Horizontal", 0))
sketch11.addConstraint(Sketcher.Constraint("Vertical", 1))
sketch11.addConstraint(Sketcher.Constraint("Horizontal", 3))
sketch11.addConstraint(Sketcher.Constraint("Horizontal", 8))
sketch11.addConstraint(Sketcher.Constraint("Vertical", 9))
sketch11.addConstraint(Sketcher.Constraint("PointOnObject", 8, 2, -2))
sketch11.addConstraint(Sketcher.Constraint("Vertical", 4, 2, 6, 2))
sketch11.addConstraint(Sketcher.Constraint("Vertical", 3, 2, 7, 2))
sketch11.addConstraint(Sketcher.Constraint("Equal", 0, 9))
sketch11.addConstraint(Sketcher.Constraint("Equal", 5, 6))
sketch11.addConstraint(Sketcher.Constraint("Equal", 4, 7))
sketch11.addConstraint(Sketcher.Constraint("DistanceX", 8, 1, 8, 2, Q("12 mm")))
sketch11.addConstraint(Sketcher.Constraint("DistanceY", 5, 2, 3, 2, Q("12 mm")))
sketch11.addConstraint(Sketcher.Constraint("DistanceX", 0, 1, 0, 2, Q("30 mm")))
sketch11.addConstraint(Sketcher.Constraint("DistanceX", 3, 2, 3, 1, Q("27 mm")))
sketch11.addConstraint(Sketcher.Constraint("DistanceY", 1, 1, 1, 2, Q("39 mm")))
sketch11.addConstraint(Sketcher.Constraint("DistanceY", -1, 1, 0, 2, Q("70 mm")))
sketch11.addConstraint(Sketcher.Constraint("DistanceX", 4, 2, -1, 1, Q("8 mm")))
sketch11.addConstraint(Sketcher.Constraint("DistanceY", -1, 1, 4, 2, Q("122 mm")))
sketch11.addConstraint(Sketcher.Constraint("DistanceX", 5, 2, -1, 1, Q("4 mm")))
pad5 = body.newObject("PartDesign::Pad", "Pad004")
pad5.Profile = sketch11
pad5.Length = 30
pad5.Reversed = True

sketch12 = body.newObject("Sketcher::SketchObject", "Sketch011")
sketch12.AttachmentSupport = (doc.getObject("YZ_Plane"), [""])
sketch12.MapMode = "FlatFace"
sketch12.addGeometry(Part.LineSegment(Vector(33.1, -5, 0), Vector(33.1, -25.1, 0)), False)
sketch12.addGeometry(Part.LineSegment(Vector(33.1, -25.1, 0), Vector(31.1, -25.1, 0)), False)
sketch12.addGeometry(Part.LineSegment(Vector(31.1, -25.1, 0), Vector(31.1, -5, 0)), False)
sketch12.addGeometry(Part.LineSegment(Vector(31.1, -5, 0), Vector(33.1, -5, 0)), False)
sketch12.addConstraint(Sketcher.Constraint("Coincident", 0, 2, 1, 1))
sketch12.addConstraint(Sketcher.Constraint("Coincident", 1, 2, 2, 1))
sketch12.addConstraint(Sketcher.Constraint("Coincident", 2, 2, 3, 1))
sketch12.addConstraint(Sketcher.Constraint("Coincident", 3, 2, 0, 1))
sketch12.addConstraint(Sketcher.Constraint("Vertical", 0))
sketch12.addConstraint(Sketcher.Constraint("Horizontal", 1))
sketch12.addConstraint(Sketcher.Constraint("Vertical", 2))
sketch12.addConstraint(Sketcher.Constraint("Horizontal", 3))
sketch12.addConstraint(Sketcher.Constraint("DistanceX", 1, 2, 1, 1, Q("2.02 mm")))
sketch12.addConstraint(Sketcher.Constraint("DistanceY", 0, 2, 0, 1, Q("20.1 mm")))
sketch12.addConstraint(Sketcher.Constraint("DistanceX", -1, 1, 1, 2, Q("31.1 mm")))
sketch12.addConstraint(Sketcher.Constraint("DistanceY", 0, 2, -1, 1, Q("25.05 mm")))
pad6 = body.newObject("PartDesign::Pad", "Pad005")
pad6.Profile = sketch12
pad6.Length = 20

sketch13 = body.newObject("Sketcher::SketchObject", "Sketch012")
sketch13.AttachmentSupport = (doc.getObject("XY_Plane"), [""])
sketch13.MapMode = "FlatFace"
sketch13.addGeometry(Part.LineSegment(Vector(-12, 100, 0), Vector(0, 100, 0)), False)
sketch13.addGeometry(Part.LineSegment(Vector(0, 100, 0), Vector(0, 89, 0)), False)
sketch13.addGeometry(Part.LineSegment(Vector(0, 89, 0), Vector(30, 89, 0)), False)
sketch13.addGeometry(Part.LineSegment(Vector(30, 89, 0), Vector(30, 109, 0)), False)
sketch13.addGeometry(Part.LineSegment(Vector(30, 109, 0), Vector(15, 124, 0)), False)
sketch13.addGeometry(Part.LineSegment(Vector(15, 124, 0), Vector(-12, 124, 0)), False)
sketch13.addGeometry(Part.LineSegment(Vector(-12, 124, 0), Vector(-8, 122, 0)), False)
sketch13.addGeometry(Part.LineSegment(Vector(-8, 122, 0), Vector(-4, 112, 0)), False)
sketch13.addGeometry(Part.LineSegment(Vector(-4, 112, 0), Vector(-8, 102, 0)), False)
sketch13.addGeometry(Part.LineSegment(Vector(-8, 102, 0), Vector(-12, 100, 0)), False)
sketch13.addConstraint(Sketcher.Constraint("Coincident", 0, 2, 1, 1))
sketch13.addConstraint(Sketcher.Constraint("Coincident", 1, 2, 2, 1))
sketch13.addConstraint(Sketcher.Constraint("Coincident", 2, 2, 3, 1))
sketch13.addConstraint(Sketcher.Constraint("Coincident", 3, 2, 4, 1))
sketch13.addConstraint(Sketcher.Constraint("Coincident", 4, 2, 5, 1))
sketch13.addConstraint(Sketcher.Constraint("Coincident", 5, 2, 6, 1))
sketch13.addConstraint(Sketcher.Constraint("Coincident", 6, 2, 7, 1))
sketch13.addConstraint(Sketcher.Constraint("Coincident", 7, 2, 8, 1))
sketch13.addConstraint(Sketcher.Constraint("Coincident", 8, 2, 9, 1))
sketch13.addConstraint(Sketcher.Constraint("Coincident", 9, 2, 0, 1))
sketch13.addConstraint(Sketcher.Constraint("Horizontal", 0))
sketch13.addConstraint(Sketcher.Constraint("Vertical", 1))
sketch13.addConstraint(Sketcher.Constraint("Horizontal", 2))
sketch13.addConstraint(Sketcher.Constraint("Vertical", 3))
sketch13.addConstraint(Sketcher.Constraint("Horizontal", 5))
sketch13.addConstraint(Sketcher.Constraint("PointOnObject", 0, 2, -2))
sketch13.addConstraint(Sketcher.Constraint("Vertical", 6, 2, 8, 2))
sketch13.addConstraint(Sketcher.Constraint("Vertical", 5, 2, 9, 2))
sketch13.addConstraint(Sketcher.Constraint("Equal", 7, 8))
sketch13.addConstraint(Sketcher.Constraint("Equal", 6, 9))
sketch13.addConstraint(Sketcher.Constraint("DistanceX", 2, 1, 2, 2, Q("30 mm")))
sketch13.addConstraint(Sketcher.Constraint("DistanceY", 3, 1, 3, 2, Q("20 mm")))
sketch13.addConstraint(Sketcher.Constraint("DistanceY", 8, 2, 6, 2, Q("20 mm")))
sketch13.addConstraint(Sketcher.Constraint("DistanceX", 0, 1, 0, 2, Q("12 mm")))
sketch13.addConstraint(Sketcher.Constraint("DistanceX", 5, 2, 5, 1, Q("27 mm")))
sketch13.addConstraint(Sketcher.Constraint("DistanceY", 1, 2, 1, 1, Q("11 mm")))
sketch13.addConstraint(Sketcher.Constraint("Angle", 4, Q("135 deg")))
sketch13.addConstraint(Sketcher.Constraint("DistanceY", -1, 1, 0, 2, Q("100 mm")))
sketch13.addConstraint(Sketcher.Constraint("DistanceX", 6, 2, -1, 1, Q("8 mm")))
sketch13.addConstraint(Sketcher.Constraint("DistanceX", 7, 2, -1, 1, Q("4 mm")))
pad7 = body.newObject("PartDesign::Pad", "Pad006")
pad7.Profile = sketch13
pad7.Length = 15
doc.recompute()

datumplane = body.newObject("PartDesign::Plane", "DatumPlane")
datumplane.AttachmentSupport = (doc.getObject("XY_Plane"), [""])
datumplane.MapMode = "FlatFace"
datumplane.AttachmentOffset = App.Placement(Vector(0, 0, -15), App.Rotation())
mirrored = body.newObject("PartDesign::Mirrored", "Mirrored")
mirrored.Originals = [pad7]
mirrored.MirrorPlane = (datumplane, [""])
body.Tip = mirrored

doc.recompute()
